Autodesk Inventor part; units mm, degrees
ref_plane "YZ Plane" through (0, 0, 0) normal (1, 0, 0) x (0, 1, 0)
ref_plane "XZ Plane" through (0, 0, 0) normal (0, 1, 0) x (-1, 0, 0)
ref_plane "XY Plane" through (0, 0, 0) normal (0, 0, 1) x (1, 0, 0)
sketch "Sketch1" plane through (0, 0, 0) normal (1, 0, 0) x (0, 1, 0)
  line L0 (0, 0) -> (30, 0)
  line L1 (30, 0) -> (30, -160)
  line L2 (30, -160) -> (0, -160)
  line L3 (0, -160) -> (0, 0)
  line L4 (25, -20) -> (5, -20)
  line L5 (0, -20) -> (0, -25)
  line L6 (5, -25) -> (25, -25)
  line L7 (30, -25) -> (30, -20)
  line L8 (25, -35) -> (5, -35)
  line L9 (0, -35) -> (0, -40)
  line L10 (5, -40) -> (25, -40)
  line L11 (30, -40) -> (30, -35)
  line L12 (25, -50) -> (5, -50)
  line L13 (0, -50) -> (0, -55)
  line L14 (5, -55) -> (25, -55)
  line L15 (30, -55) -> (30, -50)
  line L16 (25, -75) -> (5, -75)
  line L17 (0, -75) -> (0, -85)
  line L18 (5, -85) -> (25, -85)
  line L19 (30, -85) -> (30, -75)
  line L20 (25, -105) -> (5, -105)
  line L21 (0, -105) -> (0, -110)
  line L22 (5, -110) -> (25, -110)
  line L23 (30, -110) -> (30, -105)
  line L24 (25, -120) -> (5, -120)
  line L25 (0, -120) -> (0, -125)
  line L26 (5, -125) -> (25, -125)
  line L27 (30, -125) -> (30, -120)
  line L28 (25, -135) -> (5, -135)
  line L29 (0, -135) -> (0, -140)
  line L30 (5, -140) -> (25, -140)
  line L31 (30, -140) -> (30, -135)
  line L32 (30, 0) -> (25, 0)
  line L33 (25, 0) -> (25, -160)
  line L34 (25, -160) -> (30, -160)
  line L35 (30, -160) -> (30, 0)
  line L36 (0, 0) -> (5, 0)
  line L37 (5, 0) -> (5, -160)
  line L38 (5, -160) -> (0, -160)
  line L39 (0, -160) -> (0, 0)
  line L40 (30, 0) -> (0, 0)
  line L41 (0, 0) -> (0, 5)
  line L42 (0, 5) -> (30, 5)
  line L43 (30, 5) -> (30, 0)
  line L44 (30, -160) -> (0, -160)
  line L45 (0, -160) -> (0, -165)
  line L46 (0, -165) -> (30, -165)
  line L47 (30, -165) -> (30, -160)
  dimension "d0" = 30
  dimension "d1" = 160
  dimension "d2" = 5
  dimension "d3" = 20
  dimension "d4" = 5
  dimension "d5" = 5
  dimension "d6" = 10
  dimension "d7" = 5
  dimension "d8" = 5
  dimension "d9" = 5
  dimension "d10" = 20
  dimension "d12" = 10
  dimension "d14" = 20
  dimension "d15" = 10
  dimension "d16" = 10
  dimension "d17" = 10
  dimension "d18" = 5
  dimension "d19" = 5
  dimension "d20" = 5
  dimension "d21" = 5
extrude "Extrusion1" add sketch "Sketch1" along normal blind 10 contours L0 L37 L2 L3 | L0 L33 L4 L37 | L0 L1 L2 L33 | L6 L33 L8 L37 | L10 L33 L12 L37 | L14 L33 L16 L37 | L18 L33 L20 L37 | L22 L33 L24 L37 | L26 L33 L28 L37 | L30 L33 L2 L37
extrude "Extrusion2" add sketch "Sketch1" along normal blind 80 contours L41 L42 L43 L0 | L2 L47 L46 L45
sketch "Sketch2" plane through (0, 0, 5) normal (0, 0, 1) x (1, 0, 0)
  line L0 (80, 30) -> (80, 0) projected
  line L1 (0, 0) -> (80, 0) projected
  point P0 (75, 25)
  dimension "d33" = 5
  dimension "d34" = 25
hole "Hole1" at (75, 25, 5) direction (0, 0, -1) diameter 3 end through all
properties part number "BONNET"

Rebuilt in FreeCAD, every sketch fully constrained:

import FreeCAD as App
import Part
import Sketcher

V = App.Vector
Q = App.Units.Quantity

doc = App.newDocument("Part")
body = doc.addObject("PartDesign::Body", "Body")

# Sketch on YZ plane
sketch1 = body.newObject("Sketcher::SketchObject", "Sketch")
sketch1.AttachmentSupport = (doc.getObject("YZ_Plane"), [""])
sketch1.MapMode = "FlatFace"
sketch1.addGeometry(Part.LineSegment(V(0, 0, 0), V(0, -160, 0)), False)
sketch1.addGeometry(Part.LineSegment(V(0, -160, 0), V(30, -160, 0)), False)
sketch1.addGeometry(Part.LineSegment(V(30, -160, 0), V(30, 0, 0)), False)
sketch1.addGeometry(Part.LineSegment(V(30, 0, 0), V(0, 0, 0)), False)
sketch1.addGeometry(Part.LineSegment(V(5, -25, 0), V(5, -20, 0)), False)
sketch1.addGeometry(Part.LineSegment(V(5, -20, 0), V(25, -20, 0)), False)
sketch1.addGeometry(Part.LineSegment(V(25, -20, 0), V(25, -25, 0)), False)
sketch1.addGeometry(Part.LineSegment(V(25, -25, 0), V(5, -25, 0)), False)
sketch1.addGeometry(Part.LineSegment(V(5, -40, 0), V(5, -35, 0)), False)
sketch1.addGeometry(Part.LineSegment(V(5, -35, 0), V(25, -35, 0)), False)
sketch1.addGeometry(Part.LineSegment(V(25, -35, 0), V(25, -40, 0)), False)
sketch1.addGeometry(Part.LineSegment(V(25, -40, 0), V(5, -40, 0)), False)
sketch1.addGeometry(Part.LineSegment(V(5, -55, 0), V(5, -50, 0)), False)
sketch1.addGeometry(Part.LineSegment(V(5, -50, 0), V(25, -50, 0)), False)
sketch1.addGeometry(Part.LineSegment(V(25, -50, 0), V(25, -55, 0)), False)
sketch1.addGeometry(Part.LineSegment(V(25, -55, 0), V(5, -55, 0)), False)
sketch1.addGeometry(Part.LineSegment(V(5, -85, 0), V(5, -75, 0)), False)
sketch1.addGeometry(Part.LineSegment(V(5, -75, 0), V(25, -75, 0)), False)
sketch1.addGeometry(Part.LineSegment(V(25, -75, 0), V(25, -85, 0)), False)
sketch1.addGeometry(Part.LineSegment(V(25, -85, 0), V(5, -85, 0)), False)
sketch1.addGeometry(Part.LineSegment(V(5, -110, 0), V(5, -105, 0)), False)
sketch1.addGeometry(Part.LineSegment(V(5, -105, 0), V(25, -105, 0)), False)
sketch1.addGeometry(Part.LineSegment(V(25, -105, 0), V(25, -110, 0)), False)
sketch1.addGeometry(Part.LineSegment(V(25, -110, 0), V(5, -110, 0)), False)
sketch1.addGeometry(Part.LineSegment(V(5, -125, 0), V(5, -120, 0)), False)
sketch1.addGeometry(Part.LineSegment(V(5, -120, 0), V(25, -120, 0)), False)
sketch1.addGeometry(Part.LineSegment(V(25, -120, 0), V(25, -125, 0)), False)
sketch1.addGeometry(Part.LineSegment(V(25, -125, 0), V(5, -125, 0)), False)
sketch1.addGeometry(Part.LineSegment(V(5, -140, 0), V(5, -135, 0)), False)
sketch1.addGeometry(Part.LineSegment(V(5, -135, 0), V(25, -135, 0)), False)
sketch1.addGeometry(Part.LineSegment(V(25, -135, 0), V(25, -140, 0)), False)
sketch1.addGeometry(Part.LineSegment(V(25, -140, 0), V(5, -140, 0)), False)
sketch1.addConstraint(Sketcher.Constraint("Coincident", 0, 2, 1, 1))
sketch1.addConstraint(Sketcher.Constraint("Coincident", 1, 2, 2, 1))
sketch1.addConstraint(Sketcher.Constraint("Coincident", 2, 2, 3, 1))
sketch1.addConstraint(Sketcher.Constraint("Coincident", 3, 2, 0, 1))
sketch1.addConstraint(Sketcher.Constraint("Coincident", 4, 2, 5, 1))
sketch1.addConstraint(Sketcher.Constraint("Coincident", 5, 2, 6, 1))
sketch1.addConstraint(Sketcher.Constraint("Coincident", 6, 2, 7, 1))
sketch1.addConstraint(Sketcher.Constraint("Coincident", 7, 2, 4, 1))
sketch1.addConstraint(Sketcher.Constraint("Coincident", 8, 2, 9, 1))
sketch1.addConstraint(Sketcher.Constraint("Coincident", 9, 2, 10, 1))
sketch1.addConstraint(Sketcher.Constraint("Coincident", 10, 2, 11, 1))
sketch1.addConstraint(Sketcher.Constraint("Coincident", 11, 2, 8, 1))
sketch1.addConstraint(Sketcher.Constraint("Coincident", 12, 2, 13, 1))
sketch1.addConstraint(Sketcher.Constraint("Coincident", 13, 2, 14, 1))
sketch1.addConstraint(Sketcher.Constraint("Coincident", 14, 2, 15, 1))
sketch1.addConstraint(Sketcher.Constraint("Coincident", 15, 2, 12, 1))
sketch1.addConstraint(Sketcher.Constraint("Coincident", 16, 2, 17, 1))
sketch1.addConstraint(Sketcher.Constraint("Coincident", 17, 2, 18, 1))
sketch1.addConstraint(Sketcher.Constraint("Coincident", 18, 2, 19, 1))
sketch1.addConstraint(Sketcher.Constraint("Coincident", 19, 2, 16, 1))
sketch1.addConstraint(Sketcher.Constraint("Coincident", 20, 2, 21, 1))
sketch1.addConstraint(Sketcher.Constraint("Coincident", 21, 2, 22, 1))
sketch1.addConstraint(Sketcher.Constraint("Coincident", 22, 2, 23, 1))
sketch1.addConstraint(Sketcher.Constraint("Coincident", 23, 2, 20, 1))
sketch1.addConstraint(Sketcher.Constraint("Coincident", 24, 2, 25, 1))
sketch1.addConstraint(Sketcher.Constraint("Coincident", 25, 2, 26, 1))
sketch1.addConstraint(Sketcher.Constraint("Coincident", 26, 2, 27, 1))
sketch1.addConstraint(Sketcher.Constraint("Coincident", 27, 2, 24, 1))
sketch1.addConstraint(Sketcher.Constraint("Coincident", 28, 2, 29, 1))
sketch1.addConstraint(Sketcher.Constraint("Coincident", 29, 2, 30, 1))
sketch1.addConstraint(Sketcher.Constraint("Coincident", 30, 2, 31, 1))
sketch1.addConstraint(Sketcher.Constraint("Coincident", 31, 2, 28, 1))
sketch1.addConstraint(Sketcher.Constraint("Vertical", 0))
sketch1.addConstraint(Sketcher.Constraint("Horizontal", 1))
sketch1.addConstraint(Sketcher.Constraint("Vertical", 2))
sketch1.addConstraint(Sketcher.Constraint("Horizontal", 3))
sketch1.addConstraint(Sketcher.Constraint("Vertical", 4))
sketch1.addConstraint(Sketcher.Constraint("Horizontal", 5))
sketch1.addConstraint(Sketcher.Constraint("Vertical", 6))
sketch1.addConstraint(Sketcher.Constraint("Horizontal", 7))
sketch1.addConstraint(Sketcher.Constraint("Vertical", 8))
sketch1.addConstraint(Sketcher.Constraint("Horizontal", 9))
sketch1.addConstraint(Sketcher.Constraint("Vertical", 10))
sketch1.addConstraint(Sketcher.Constraint("Horizontal", 11))
sketch1.addConstraint(Sketcher.Constraint("Vertical", 12))
sketch1.addConstraint(Sketcher.Constraint("Horizontal", 13))
sketch1.addConstraint(Sketcher.Constraint("Vertical", 14))
sketch1.addConstraint(Sketcher.Constraint("Horizontal", 15))
sketch1.addConstraint(Sketcher.Constraint("Vertical", 16))
sketch1.addConstraint(Sketcher.Constraint("Horizontal", 17))
sketch1.addConstraint(Sketcher.Constraint("Vertical", 18))
sketch1.addConstraint(Sketcher.Constraint("Horizontal", 19))
sketch1.addConstraint(Sketcher.Constraint("Vertical", 20))
sketch1.addConstraint(Sketcher.Constraint("Horizontal", 21))
sketch1.addConstraint(Sketcher.Constraint("Vertical", 22))
sketch1.addConstraint(Sketcher.Constraint("Horizontal", 23))
sketch1.addConstraint(Sketcher.Constraint("Vertical", 24))
sketch1.addConstraint(Sketcher.Constraint("Horizontal", 25))
sketch1.addConstraint(Sketcher.Constraint("Vertical", 26))
sketch1.addConstraint(Sketcher.Constraint("Horizontal", 27))
sketch1.addConstraint(Sketcher.Constraint("Vertical", 28))
sketch1.addConstraint(Sketcher.Constraint("Horizontal", 29))
sketch1.addConstraint(Sketcher.Constraint("Vertical", 30))
sketch1.addConstraint(Sketcher.Constraint("Horizontal", 31))
sketch1.addConstraint(Sketcher.Constraint("Coincident", 3, 2, -1, 1))
sketch1.addConstraint(Sketcher.Constraint("Vertical", 7, 2, 8, 2))
sketch1.addConstraint(Sketcher.Constraint("Vertical", 6, 2, 9, 2))
sketch1.addConstraint(Sketcher.Constraint("Vertical", 11, 2, 12, 2))
sketch1.addConstraint(Sketcher.Constraint("Vertical", 10, 2, 13, 2))
sketch1.addConstraint(Sketcher.Constraint("Vertical", 15, 2, 16, 2))
sketch1.addConstraint(Sketcher.Constraint("Vertical", 14, 2, 17, 2))
sketch1.addConstraint(Sketcher.Constraint("Vertical", 19, 2, 20, 2))
sketch1.addConstraint(Sketcher.Constraint("Vertical", 18, 2, 21, 2))
sketch1.addConstraint(Sketcher.Constraint("Vertical", 23, 2, 24, 2))
sketch1.addConstraint(Sketcher.Constraint("Vertical", 22, 2, 25, 2))
sketch1.addConstraint(Sketcher.Constraint("Vertical", 27, 2, 28, 2))
sketch1.addConstraint(Sketcher.Constraint("Vertical", 26, 2, 29, 2))
sketch1.addConstraint(Sketcher.Constraint("Equal", 6, 8))
sketch1.addConstraint(Sketcher.Constraint("Equal", 10, 12))
sketch1.addConstraint(Sketcher.Constraint("Equal", 14, 20))
sketch1.addConstraint(Sketcher.Constraint("Equal", 22, 24))
sketch1.addConstraint(Sketcher.Constraint("Equal", 26, 28))
sketch1.addConstraint(Sketcher.Constraint("DistanceX", 1, 1, 1, 2, Q("30 mm")))
sketch1.addConstraint(Sketcher.Constraint("DistanceX", 5, 1, 5, 2, Q("20 mm")))
sketch1.addConstraint(Sketcher.Constraint("DistanceY", 0, 2, 0, 1, Q("160 mm")))
sketch1.addConstraint(Sketcher.Constraint("DistanceY", 4, 1, 4, 2, Q("5 mm")))
sketch1.addConstraint(Sketcher.Constraint("DistanceY", 16, 1, 16, 2, Q("10 mm")))
sketch1.addConstraint(Sketcher.Constraint("DistanceX", -1, 1, 4, 2, Q("5 mm")))
sketch1.addConstraint(Sketcher.Constraint("DistanceY", 4, 2, -1, 1, Q("20 mm")))
sketch1.addConstraint(Sketcher.Constraint("DistanceY", 8, 2, 7, 2, Q("10 mm")))
sketch1.addConstraint(Sketcher.Constraint("DistanceY", 12, 2, 11, 2, Q("10 mm")))
sketch1.addConstraint(Sketcher.Constraint("DistanceY", 16, 2, 15, 2, Q("20 mm")))
sketch1.addConstraint(Sketcher.Constraint("DistanceY", 20, 2, 19, 2, Q("20 mm")))
sketch1.addConstraint(Sketcher.Constraint("DistanceY", 24, 2, 23, 2, Q("10 mm")))
sketch1.addConstraint(Sketcher.Constraint("DistanceY", 28, 2, 27, 2, Q("10 mm")))
pad1 = body.newObject("PartDesign::Pad", "Pad")
pad1.Profile = sketch1
pad1.Length = 10

# Sketch on YZ plane
sketch2 = body.newObject("Sketcher::SketchObject", "Sketch001")
sketch2.AttachmentSupport = (doc.getObject("YZ_Plane"), [""])
sketch2.MapMode = "FlatFace"
sketch2.addGeometry(Part.LineSegment(V(0, 5, 0), V(0, 0, 0)), False)
sketch2.addGeometry(Part.LineSegment(V(0, 0, 0), V(30, 0, 0)), False)
sketch2.addGeometry(Part.LineSegment(V(30, 0, 0), V(30, 5, 0)), False)
sketch2.addGeometry(Part.LineSegment(V(30, 5, 0), V(0, 5, 0)), False)
sketch2.addGeometry(Part.LineSegment(V(30, -160, 0), V(0, -160, 0)), False)
sketch2.addGeometry(Part.LineSegment(V(0, -160, 0), V(0, -165, 0)), False)
sketch2.addGeometry(Part.LineSegment(V(0, -165, 0), V(30, -165, 0)), False)
sketch2.addGeometry(Part.LineSegment(V(30, -165, 0), V(30, -160, 0)), False)
sketch2.addConstraint(Sketcher.Constraint("Coincident", 0, 2, 1, 1))
sketch2.addConstraint(Sketcher.Constraint("Coincident", 1, 2, 2, 1))
sketch2.addConstraint(Sketcher.Constraint("Coincident", 2, 2, 3, 1))
sketch2.addConstraint(Sketcher.Constraint("Coincident", 3, 2, 0, 1))
sketch2.addConstraint(Sketcher.Constraint("Coincident", 4, 2, 5, 1))
sketch2.addConstraint(Sketcher.Constraint("Coincident", 5, 2, 6, 1))
sketch2.addConstraint(Sketcher.Constraint("Coincident", 6, 2, 7, 1))
sketch2.addConstraint(Sketcher.Constraint("Coincident", 7, 2, 4, 1))
sketch2.addConstraint(Sketcher.Constraint("Vertical", 0))
sketch2.addConstraint(Sketcher.Constraint("Horizontal", 1))
sketch2.addConstraint(Sketcher.Constraint("Vertical", 2))
sketch2.addConstraint(Sketcher.Constraint("Horizontal", 3))
sketch2.addConstraint(Sketcher.Constraint("Horizontal", 4))
sketch2.addConstraint(Sketcher.Constraint("Vertical", 5))
sketch2.addConstraint(Sketcher.Constraint("Horizontal", 6))
sketch2.addConstraint(Sketcher.Constraint("Vertical", 7))
sketch2.addConstraint(Sketcher.Constraint("Coincident", 0, 2, -1, 1))
sketch2.addConstraint(Sketcher.Constraint("PointOnObject", 4, 2, -2))
sketch2.addConstraint(Sketcher.Constraint("Vertical", 2, 2, 6, 2))
sketch2.addConstraint(Sketcher.Constraint("Equal", 2, 5))
sketch2.addConstraint(Sketcher.Constraint("DistanceX", 1, 1, 1, 2, Q("30 mm")))
sketch2.addConstraint(Sketcher.Constraint("DistanceY", 0, 2, 0, 1, Q("5 mm")))
sketch2.addConstraint(Sketcher.Constraint("DistanceY", 4, 2, -1, 1, Q("160 mm")))
pad2 = body.newObject("PartDesign::Pad", "Pad001")
pad2.Profile = sketch2
pad2.Length = 80

# Sketch on XY plane
sketch3 = body.newObject("Sketcher::SketchObject", "Sketch002")
sketch3.AttachmentSupport = (doc.getObject("XY_Plane"), [""])
sketch3.MapMode = "FlatFace"
sketch3.AttachmentOffset = App.Placement(V(0, 0, 5), App.Rotation())
sketch3.addGeometry(Part.Circle(V(75, 25, 0), V(0, 0, 1), 1.5), False)
sketch3.addConstraint(Sketcher.Constraint("Diameter", 0, Q("3 mm")))
sketch3.addConstraint(Sketcher.Constraint("DistanceX", -1, 1, 0, 3, Q("75 mm")))
sketch3.addConstraint(Sketcher.Constraint("DistanceY", -1, 1, 0, 3, Q("25 mm")))
doc.recompute()
hole = body.newObject("PartDesign::Hole", "Hole")
hole.Profile = sketch3
hole.ThreadType = "None"
hole.Diameter = 3
hole.DepthType = "ThroughAll"

doc.recompute()
